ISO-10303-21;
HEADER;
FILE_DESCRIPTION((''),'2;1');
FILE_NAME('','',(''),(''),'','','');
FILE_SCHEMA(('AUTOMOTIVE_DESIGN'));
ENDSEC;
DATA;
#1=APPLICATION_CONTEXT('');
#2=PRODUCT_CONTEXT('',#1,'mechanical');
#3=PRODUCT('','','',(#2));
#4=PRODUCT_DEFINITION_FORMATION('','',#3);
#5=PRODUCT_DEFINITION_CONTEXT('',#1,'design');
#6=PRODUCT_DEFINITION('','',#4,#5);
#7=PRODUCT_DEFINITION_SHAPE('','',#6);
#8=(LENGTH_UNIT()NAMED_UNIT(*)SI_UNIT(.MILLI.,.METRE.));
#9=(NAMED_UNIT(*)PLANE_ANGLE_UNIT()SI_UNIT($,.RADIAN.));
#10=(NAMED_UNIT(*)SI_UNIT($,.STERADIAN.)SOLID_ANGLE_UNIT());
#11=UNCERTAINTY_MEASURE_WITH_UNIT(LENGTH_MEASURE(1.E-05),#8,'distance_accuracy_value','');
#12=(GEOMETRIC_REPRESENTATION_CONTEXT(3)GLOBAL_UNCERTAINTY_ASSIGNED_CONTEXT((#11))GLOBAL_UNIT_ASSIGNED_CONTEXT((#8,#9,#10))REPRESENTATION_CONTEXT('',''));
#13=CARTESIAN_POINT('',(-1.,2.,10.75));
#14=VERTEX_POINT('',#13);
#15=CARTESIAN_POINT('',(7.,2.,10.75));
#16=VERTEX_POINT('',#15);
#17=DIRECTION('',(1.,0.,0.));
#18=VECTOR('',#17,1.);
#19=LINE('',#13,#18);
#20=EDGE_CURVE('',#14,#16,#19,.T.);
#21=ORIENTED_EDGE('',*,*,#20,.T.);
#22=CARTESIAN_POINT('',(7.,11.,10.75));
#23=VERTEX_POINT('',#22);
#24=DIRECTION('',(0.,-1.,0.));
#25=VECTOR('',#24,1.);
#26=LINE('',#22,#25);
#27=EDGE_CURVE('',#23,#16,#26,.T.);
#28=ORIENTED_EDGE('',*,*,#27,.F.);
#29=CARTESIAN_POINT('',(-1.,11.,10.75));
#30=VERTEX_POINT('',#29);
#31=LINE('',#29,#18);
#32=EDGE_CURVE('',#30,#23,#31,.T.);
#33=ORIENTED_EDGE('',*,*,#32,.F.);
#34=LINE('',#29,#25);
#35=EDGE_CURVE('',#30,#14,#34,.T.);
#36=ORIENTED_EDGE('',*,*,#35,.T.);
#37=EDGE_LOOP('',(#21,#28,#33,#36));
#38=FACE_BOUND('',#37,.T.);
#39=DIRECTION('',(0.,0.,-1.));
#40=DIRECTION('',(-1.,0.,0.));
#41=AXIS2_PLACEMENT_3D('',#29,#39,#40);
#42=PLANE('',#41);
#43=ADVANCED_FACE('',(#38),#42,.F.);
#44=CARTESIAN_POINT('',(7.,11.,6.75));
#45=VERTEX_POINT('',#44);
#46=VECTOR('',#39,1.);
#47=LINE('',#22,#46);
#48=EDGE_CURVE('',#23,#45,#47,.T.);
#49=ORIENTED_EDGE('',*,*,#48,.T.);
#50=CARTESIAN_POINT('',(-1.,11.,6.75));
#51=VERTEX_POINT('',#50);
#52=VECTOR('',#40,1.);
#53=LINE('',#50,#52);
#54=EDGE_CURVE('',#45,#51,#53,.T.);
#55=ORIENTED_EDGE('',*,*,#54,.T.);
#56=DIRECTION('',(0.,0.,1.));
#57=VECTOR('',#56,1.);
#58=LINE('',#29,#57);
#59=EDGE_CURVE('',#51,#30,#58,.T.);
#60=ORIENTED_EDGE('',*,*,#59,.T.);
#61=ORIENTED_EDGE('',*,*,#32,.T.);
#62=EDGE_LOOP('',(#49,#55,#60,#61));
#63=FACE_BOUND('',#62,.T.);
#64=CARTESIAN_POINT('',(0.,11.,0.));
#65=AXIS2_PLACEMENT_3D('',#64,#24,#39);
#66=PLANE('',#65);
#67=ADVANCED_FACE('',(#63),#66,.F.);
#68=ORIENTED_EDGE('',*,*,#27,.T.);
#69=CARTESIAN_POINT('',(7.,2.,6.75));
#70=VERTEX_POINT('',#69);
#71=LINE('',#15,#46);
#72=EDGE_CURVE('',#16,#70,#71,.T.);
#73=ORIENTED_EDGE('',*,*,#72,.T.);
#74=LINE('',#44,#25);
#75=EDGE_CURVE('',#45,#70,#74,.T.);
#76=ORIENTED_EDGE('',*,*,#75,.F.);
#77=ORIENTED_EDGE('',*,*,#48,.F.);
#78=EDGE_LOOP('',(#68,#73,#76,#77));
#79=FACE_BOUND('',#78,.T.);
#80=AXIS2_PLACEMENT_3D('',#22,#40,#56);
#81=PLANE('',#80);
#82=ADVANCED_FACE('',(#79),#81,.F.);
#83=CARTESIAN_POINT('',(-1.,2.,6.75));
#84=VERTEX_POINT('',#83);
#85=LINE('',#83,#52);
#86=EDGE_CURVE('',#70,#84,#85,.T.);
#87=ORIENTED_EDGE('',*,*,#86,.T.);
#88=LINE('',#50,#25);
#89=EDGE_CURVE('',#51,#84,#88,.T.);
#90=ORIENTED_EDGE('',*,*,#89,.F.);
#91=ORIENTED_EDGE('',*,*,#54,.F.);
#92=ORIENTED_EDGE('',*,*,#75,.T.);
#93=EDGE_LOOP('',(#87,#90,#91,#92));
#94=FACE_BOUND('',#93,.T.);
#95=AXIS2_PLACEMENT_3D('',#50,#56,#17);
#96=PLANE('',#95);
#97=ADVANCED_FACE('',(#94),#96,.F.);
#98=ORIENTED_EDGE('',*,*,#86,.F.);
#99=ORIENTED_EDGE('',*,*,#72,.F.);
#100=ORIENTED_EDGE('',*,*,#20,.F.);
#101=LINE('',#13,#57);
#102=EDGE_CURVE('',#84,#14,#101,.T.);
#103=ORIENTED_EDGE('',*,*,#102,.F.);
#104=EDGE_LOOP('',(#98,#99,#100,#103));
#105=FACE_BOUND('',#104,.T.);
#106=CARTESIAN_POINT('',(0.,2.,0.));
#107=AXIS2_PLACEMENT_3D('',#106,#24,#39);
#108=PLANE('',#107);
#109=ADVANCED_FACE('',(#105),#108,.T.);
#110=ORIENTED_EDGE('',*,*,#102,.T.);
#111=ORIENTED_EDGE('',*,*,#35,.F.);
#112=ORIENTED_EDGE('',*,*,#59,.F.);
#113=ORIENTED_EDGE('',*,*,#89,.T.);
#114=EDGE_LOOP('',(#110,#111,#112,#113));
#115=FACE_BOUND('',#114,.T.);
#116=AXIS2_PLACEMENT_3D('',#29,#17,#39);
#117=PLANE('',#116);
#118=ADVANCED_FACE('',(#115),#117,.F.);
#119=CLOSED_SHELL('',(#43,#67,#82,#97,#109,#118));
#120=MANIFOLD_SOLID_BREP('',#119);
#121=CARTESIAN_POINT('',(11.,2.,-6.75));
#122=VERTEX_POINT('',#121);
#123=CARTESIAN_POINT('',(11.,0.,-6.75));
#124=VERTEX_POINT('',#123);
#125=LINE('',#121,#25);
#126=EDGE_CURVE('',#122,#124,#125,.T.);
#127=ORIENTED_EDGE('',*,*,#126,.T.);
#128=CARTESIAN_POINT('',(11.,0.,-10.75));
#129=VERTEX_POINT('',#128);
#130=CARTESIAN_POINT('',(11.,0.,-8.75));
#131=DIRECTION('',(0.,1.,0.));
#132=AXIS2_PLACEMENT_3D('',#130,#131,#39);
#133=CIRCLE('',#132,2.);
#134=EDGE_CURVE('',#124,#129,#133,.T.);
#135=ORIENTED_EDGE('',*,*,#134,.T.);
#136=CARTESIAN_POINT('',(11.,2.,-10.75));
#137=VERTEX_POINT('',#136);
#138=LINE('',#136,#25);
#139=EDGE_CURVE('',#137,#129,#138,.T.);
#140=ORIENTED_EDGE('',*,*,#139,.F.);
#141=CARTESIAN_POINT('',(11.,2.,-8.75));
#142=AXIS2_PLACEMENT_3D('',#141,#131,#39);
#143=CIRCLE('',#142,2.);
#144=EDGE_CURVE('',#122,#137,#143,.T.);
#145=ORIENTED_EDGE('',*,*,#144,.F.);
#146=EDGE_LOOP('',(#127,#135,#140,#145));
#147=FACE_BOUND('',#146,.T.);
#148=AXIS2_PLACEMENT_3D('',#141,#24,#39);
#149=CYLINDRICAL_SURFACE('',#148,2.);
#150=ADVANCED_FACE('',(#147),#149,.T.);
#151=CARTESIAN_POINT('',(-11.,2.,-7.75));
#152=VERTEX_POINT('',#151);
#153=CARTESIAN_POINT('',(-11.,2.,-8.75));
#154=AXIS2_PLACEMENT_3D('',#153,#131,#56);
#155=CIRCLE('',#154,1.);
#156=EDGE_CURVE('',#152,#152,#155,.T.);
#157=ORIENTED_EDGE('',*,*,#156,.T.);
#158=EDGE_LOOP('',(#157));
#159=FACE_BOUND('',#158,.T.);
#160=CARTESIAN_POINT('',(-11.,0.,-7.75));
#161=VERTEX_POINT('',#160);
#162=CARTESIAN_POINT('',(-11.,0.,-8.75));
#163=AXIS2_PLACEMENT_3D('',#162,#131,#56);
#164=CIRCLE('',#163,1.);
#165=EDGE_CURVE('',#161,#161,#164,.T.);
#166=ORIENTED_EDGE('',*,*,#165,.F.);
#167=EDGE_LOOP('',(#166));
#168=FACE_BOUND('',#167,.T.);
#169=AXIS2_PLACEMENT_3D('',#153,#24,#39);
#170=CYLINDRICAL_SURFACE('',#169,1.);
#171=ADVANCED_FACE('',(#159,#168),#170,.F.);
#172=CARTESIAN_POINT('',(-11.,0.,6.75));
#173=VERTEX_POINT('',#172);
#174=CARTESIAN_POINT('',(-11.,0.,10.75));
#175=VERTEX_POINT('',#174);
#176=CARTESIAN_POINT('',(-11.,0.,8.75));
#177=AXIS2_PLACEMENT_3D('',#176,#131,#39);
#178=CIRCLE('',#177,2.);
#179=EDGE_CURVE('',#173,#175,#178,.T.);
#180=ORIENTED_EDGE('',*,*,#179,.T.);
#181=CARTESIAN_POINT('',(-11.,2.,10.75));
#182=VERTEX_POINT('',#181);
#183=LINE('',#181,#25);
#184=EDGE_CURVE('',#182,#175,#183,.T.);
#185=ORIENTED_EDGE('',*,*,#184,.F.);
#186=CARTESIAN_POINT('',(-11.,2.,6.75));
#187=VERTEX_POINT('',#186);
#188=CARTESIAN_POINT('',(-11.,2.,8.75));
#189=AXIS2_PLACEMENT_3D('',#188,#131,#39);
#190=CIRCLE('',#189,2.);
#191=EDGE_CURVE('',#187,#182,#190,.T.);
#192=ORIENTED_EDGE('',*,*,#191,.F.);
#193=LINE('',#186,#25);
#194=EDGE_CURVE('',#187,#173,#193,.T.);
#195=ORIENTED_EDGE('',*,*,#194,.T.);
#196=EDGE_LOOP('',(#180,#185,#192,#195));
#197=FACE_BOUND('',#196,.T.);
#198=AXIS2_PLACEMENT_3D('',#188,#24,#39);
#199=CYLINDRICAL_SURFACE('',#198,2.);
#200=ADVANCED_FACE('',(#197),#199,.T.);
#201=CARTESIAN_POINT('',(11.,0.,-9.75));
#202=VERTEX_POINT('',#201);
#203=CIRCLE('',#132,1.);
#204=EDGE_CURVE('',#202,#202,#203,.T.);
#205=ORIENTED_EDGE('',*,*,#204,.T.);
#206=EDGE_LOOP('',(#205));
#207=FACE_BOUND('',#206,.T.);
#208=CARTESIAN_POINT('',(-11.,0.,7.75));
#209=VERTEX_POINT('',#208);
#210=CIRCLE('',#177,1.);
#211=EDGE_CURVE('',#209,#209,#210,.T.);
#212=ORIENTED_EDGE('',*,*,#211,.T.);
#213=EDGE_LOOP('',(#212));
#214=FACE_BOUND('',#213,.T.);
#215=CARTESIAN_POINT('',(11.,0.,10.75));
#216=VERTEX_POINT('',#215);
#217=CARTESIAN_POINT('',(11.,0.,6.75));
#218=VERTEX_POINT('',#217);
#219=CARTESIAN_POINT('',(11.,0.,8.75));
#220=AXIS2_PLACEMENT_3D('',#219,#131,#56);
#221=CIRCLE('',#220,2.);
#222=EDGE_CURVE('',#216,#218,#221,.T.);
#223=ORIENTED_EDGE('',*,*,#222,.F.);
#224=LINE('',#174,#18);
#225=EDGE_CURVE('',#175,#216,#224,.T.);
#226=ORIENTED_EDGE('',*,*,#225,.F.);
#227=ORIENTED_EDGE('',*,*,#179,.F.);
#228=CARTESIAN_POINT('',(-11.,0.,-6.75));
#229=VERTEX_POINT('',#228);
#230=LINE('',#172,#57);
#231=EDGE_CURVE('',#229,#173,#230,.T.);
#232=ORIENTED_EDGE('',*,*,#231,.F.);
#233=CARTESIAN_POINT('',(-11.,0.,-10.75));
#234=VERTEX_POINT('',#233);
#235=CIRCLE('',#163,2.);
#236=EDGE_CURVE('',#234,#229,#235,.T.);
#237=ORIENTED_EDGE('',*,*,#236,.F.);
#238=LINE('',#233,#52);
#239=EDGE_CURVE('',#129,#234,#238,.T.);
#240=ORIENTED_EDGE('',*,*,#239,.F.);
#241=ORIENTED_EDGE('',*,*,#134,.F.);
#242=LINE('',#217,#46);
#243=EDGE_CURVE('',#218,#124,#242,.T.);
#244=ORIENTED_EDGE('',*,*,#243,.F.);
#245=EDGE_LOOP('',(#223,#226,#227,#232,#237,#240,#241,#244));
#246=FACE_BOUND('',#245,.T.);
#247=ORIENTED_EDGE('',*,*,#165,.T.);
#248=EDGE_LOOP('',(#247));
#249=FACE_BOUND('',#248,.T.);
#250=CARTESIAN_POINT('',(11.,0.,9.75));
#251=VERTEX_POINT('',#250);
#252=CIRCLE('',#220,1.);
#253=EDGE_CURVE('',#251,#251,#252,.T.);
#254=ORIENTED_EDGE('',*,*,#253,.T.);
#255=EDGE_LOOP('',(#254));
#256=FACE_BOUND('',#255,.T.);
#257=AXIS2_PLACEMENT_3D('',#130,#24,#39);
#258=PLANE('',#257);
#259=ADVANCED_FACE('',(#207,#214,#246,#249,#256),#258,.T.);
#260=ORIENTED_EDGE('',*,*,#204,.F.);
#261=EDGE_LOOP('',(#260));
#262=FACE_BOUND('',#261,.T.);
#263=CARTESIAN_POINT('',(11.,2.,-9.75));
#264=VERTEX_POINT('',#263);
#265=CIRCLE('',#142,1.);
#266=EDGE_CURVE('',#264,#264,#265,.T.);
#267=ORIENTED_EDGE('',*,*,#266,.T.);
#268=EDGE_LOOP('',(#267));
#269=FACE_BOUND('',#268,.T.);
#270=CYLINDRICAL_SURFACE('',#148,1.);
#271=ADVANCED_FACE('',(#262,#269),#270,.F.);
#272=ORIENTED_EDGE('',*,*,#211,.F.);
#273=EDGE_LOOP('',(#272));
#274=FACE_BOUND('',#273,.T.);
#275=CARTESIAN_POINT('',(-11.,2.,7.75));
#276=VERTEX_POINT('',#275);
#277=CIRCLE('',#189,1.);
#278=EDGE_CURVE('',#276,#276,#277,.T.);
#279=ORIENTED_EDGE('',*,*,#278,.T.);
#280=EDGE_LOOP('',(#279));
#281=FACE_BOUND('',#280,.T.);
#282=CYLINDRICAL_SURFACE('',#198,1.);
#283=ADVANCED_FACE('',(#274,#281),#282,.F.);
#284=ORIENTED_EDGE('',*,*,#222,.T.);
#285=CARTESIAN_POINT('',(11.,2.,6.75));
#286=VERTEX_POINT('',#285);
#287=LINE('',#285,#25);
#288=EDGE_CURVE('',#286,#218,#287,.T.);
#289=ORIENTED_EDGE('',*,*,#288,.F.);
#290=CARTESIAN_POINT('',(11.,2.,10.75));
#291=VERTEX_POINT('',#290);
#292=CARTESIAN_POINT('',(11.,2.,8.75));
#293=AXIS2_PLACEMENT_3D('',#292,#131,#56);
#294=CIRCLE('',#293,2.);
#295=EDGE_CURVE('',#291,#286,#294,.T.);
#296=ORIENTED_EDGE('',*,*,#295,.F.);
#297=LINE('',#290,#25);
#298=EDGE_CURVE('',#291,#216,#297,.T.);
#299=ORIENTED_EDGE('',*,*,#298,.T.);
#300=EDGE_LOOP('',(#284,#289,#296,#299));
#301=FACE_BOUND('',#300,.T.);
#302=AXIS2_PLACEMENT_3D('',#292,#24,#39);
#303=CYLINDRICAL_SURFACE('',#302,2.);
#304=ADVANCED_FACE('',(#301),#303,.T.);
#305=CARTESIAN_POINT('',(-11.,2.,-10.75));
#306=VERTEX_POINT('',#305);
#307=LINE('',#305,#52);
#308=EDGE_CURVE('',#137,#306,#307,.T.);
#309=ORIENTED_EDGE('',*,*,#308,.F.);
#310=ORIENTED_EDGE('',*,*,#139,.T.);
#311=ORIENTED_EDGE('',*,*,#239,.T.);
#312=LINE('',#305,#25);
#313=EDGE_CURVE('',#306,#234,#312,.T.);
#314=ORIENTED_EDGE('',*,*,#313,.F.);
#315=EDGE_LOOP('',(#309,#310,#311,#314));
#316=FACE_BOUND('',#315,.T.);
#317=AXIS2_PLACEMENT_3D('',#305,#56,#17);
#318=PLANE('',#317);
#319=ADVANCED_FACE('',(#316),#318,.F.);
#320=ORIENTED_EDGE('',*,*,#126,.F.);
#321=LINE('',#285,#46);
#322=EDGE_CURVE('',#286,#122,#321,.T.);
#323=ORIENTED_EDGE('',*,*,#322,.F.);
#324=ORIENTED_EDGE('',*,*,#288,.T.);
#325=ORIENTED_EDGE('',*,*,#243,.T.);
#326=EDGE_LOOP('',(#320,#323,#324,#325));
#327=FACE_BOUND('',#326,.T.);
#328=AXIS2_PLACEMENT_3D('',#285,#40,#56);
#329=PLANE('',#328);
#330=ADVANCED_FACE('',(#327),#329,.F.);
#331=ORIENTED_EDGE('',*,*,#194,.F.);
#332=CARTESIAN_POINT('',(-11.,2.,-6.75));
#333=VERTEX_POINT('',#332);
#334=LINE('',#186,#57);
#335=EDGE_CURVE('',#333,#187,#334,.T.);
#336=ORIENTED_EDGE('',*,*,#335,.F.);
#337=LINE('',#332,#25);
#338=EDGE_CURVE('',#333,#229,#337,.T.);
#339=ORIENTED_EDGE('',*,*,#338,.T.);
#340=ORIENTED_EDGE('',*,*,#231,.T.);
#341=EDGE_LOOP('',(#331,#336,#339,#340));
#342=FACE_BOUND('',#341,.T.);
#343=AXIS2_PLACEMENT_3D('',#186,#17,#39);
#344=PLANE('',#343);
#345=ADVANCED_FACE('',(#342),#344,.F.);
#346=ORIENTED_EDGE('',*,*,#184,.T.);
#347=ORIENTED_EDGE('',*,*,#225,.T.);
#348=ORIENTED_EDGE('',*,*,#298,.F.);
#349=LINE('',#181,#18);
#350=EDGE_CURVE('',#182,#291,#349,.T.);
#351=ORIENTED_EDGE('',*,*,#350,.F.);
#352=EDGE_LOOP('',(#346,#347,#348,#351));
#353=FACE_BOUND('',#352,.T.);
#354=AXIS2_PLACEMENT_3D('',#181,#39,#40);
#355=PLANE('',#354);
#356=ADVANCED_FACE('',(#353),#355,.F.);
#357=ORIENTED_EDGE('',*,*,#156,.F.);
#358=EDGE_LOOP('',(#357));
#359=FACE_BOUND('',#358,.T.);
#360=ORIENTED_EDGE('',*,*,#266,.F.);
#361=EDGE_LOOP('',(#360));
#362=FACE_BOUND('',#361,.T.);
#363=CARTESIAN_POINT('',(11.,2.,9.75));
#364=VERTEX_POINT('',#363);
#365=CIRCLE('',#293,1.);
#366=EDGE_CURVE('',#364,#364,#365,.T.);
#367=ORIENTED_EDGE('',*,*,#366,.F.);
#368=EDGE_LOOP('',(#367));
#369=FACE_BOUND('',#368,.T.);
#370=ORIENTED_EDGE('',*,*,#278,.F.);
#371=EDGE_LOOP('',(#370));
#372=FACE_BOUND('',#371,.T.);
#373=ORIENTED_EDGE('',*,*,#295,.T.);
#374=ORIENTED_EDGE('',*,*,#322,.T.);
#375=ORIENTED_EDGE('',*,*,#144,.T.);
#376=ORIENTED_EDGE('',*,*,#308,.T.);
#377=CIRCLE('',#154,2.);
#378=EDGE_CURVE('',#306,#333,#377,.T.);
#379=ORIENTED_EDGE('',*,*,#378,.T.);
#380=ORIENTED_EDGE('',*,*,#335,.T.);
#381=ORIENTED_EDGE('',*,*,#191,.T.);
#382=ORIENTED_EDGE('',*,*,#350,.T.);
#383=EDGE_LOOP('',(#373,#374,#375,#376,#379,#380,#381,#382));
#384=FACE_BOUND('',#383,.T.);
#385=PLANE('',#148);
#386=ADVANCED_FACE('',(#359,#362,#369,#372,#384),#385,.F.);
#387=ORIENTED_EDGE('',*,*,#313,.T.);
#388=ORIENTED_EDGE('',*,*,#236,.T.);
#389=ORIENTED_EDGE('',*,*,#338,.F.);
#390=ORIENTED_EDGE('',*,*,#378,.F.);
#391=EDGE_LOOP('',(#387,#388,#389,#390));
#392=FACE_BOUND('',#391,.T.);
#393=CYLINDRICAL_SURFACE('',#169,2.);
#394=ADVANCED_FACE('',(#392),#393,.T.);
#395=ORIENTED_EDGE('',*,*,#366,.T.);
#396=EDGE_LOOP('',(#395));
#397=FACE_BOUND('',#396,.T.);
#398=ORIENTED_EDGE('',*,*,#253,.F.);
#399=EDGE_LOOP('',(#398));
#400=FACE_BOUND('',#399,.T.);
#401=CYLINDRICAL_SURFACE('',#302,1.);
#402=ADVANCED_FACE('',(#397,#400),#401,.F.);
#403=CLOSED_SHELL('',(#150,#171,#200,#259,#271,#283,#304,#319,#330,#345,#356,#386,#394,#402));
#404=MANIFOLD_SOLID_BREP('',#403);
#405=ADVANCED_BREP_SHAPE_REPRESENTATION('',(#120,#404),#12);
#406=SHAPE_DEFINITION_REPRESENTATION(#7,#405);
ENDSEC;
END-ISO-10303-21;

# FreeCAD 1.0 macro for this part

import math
import FreeCAD as App
import Part
import Sketcher

V = App.Vector
Q = App.Units.Quantity

doc = App.newDocument("Part")
body = doc.addObject("PartDesign::Body", "Body")

# Sketch on XZ plane
sketch1 = doc.addObject("Sketcher::SketchObject", "Sketch")
body.addObject(sketch1)
sketch1.AttachmentSupport = (doc.XZ_Plane, [""])
sketch1.MapMode = "FlatFace"
sketch1.addGeometry([
    Part.LineSegment(V(-11, 10.8, 0), V(11, 10.8, 0)),  # 0
    Part.ArcOfCircle(Part.Circle(V(11, 8.8, 0), V(0, 0, 1), 2), math.radians(-90), math.radians(90)),  # 1
    Part.LineSegment(V(11, 6.8, 0), V(11, -6.8, 0)),  # 2
    Part.ArcOfCircle(Part.Circle(V(11, -8.8, 0), V(0, 0, 1), 2), math.radians(-90), math.radians(90)),  # 3
    Part.LineSegment(V(11, -10.8, 0), V(-11, -10.8, 0)),  # 4
    Part.ArcOfCircle(Part.Circle(V(-11, -8.8, 0), V(0, 0, 1), 2), math.radians(90), math.radians(270)),  # 5
    Part.LineSegment(V(-11, -6.8, 0), V(-11, 6.8, 0)),  # 6
    Part.ArcOfCircle(Part.Circle(V(-11, 8.8, 0), V(0, 0, 1), 2), math.radians(90), math.radians(270)),  # 7
    Part.Circle(V(-11, 8.8, 0), V(0, 0, 1), 1),  # 8
    Part.Circle(V(11, 8.8, 0), V(0, 0, 1), 1),  # 9
    Part.Circle(V(-11, -8.8, 0), V(0, 0, 1), 1),  # 10
    Part.Circle(V(11, -8.8, 0), V(0, 0, 1), 1),  # 11
], False)
sketch1.addConstraint([
    Sketcher.Constraint("Tangent", 0, 2, 1, 2),
    Sketcher.Constraint("Coincident", 1, 1, 2, 1),
    Sketcher.Constraint("Coincident", 2, 2, 3, 2),
    Sketcher.Constraint("Tangent", 3, 1, 4, 1),
    Sketcher.Constraint("Tangent", 4, 2, 5, 2),
    Sketcher.Constraint("Coincident", 5, 1, 6, 1),
    Sketcher.Constraint("Coincident", 6, 2, 7, 2),
    Sketcher.Constraint("Tangent", 7, 1, 0, 1),
    Sketcher.Constraint("Horizontal", 0),
    Sketcher.Constraint("Vertical", 2),
    Sketcher.Constraint("Horizontal", 4),
    Sketcher.Constraint("Vertical", 6),
    Sketcher.Constraint("Coincident", 8, 3, 7, 3),
    Sketcher.Constraint("Coincident", 9, 3, 1, 3),
    Sketcher.Constraint("Coincident", 10, 3, 5, 3),
    Sketcher.Constraint("Coincident", 11, 3, 3, 3),
    Sketcher.Constraint("Equal", 1, 3),
    Sketcher.Constraint("Equal", 3, 5),
    Sketcher.Constraint("Equal", 5, 7),
    Sketcher.Constraint("Equal", 8, 9),
    Sketcher.Constraint("Equal", 9, 10),
    Sketcher.Constraint("Equal", 10, 11),
    Sketcher.Constraint("Symmetric", 1, 3, 5, 3, -1, 1),
    Sketcher.Constraint("Vertical", 1, 3, 3, 3),
    Sketcher.Constraint("Vertical", 5, 3, 7, 3),
    Sketcher.Constraint("Vertical", 0, 2, 1, 1),
    Sketcher.Constraint("Vertical", 4, 2, 5, 1),
    Sketcher.Constraint("Diameter", 8, Q("2 mm")),
    Sketcher.Constraint("Radius", 1, Q("2 mm")),
    Sketcher.Constraint("DistanceX", 0, 1, 0, 2, Q("22 mm")),
    Sketcher.Constraint("DistanceY", 2, 2, 2, 1, Q("13.5 mm")),
])
pad1 = doc.addObject("PartDesign::Pad", "Pad")
body.addObject(pad1)
pad1.Profile = sketch1
pad1.Length = 2
pad1.Reversed = True
body2 = doc.addObject("PartDesign::Body", "Body001")

# Sketch on XZ plane
sketch2 = doc.addObject("Sketcher::SketchObject", "Sketch001")
body2.addObject(sketch2)
sketch2.AttachmentSupport = (doc.getObject("XZ_Plane001"), [""])
sketch2.MapMode = "FlatFace"
sketch2.AttachmentOffset = App.Placement(V(0, 0, -2), App.Rotation())
sketch2.addGeometry([
    Part.LineSegment(V(-1, 6.8, 0), V(-1, 10.8, 0)),
    Part.LineSegment(V(-1, 10.8, 0), V(7, 10.8, 0)),
    Part.LineSegment(V(7, 10.8, 0), V(7, 6.8, 0)),
    Part.LineSegment(V(7, 6.8, 0), V(-1, 6.8, 0)),
], False)
sketch2.addConstraint([
    Sketcher.Constraint("Coincident", 0, 2, 1, 1),
    Sketcher.Constraint("Coincident", 1, 2, 2, 1),
    Sketcher.Constraint("Coincident", 2, 2, 3, 1),
    Sketcher.Constraint("Coincident", 3, 2, 0, 1),
    Sketcher.Constraint("Vertical", 0),
    Sketcher.Constraint("Horizontal", 1),
    Sketcher.Constraint("Vertical", 2),
    Sketcher.Constraint("Horizontal", 3),
    Sketcher.Constraint("DistanceX", 1, 1, 1, 2, Q("8 mm")),
    Sketcher.Constraint("DistanceY", 0, 1, 0, 2, Q("4 mm")),
    Sketcher.Constraint("DistanceX", 0, 2, -1, 1, Q("1 mm")),
    Sketcher.Constraint("DistanceY", -1, 1, 0, 2, Q("10.75 mm")),
])
pad2 = doc.addObject("PartDesign::Pad", "Pad001")
body2.addObject(pad2)
pad2.Profile = sketch2
pad2.Length = 9
pad2.Reversed = True

doc.recompute()
